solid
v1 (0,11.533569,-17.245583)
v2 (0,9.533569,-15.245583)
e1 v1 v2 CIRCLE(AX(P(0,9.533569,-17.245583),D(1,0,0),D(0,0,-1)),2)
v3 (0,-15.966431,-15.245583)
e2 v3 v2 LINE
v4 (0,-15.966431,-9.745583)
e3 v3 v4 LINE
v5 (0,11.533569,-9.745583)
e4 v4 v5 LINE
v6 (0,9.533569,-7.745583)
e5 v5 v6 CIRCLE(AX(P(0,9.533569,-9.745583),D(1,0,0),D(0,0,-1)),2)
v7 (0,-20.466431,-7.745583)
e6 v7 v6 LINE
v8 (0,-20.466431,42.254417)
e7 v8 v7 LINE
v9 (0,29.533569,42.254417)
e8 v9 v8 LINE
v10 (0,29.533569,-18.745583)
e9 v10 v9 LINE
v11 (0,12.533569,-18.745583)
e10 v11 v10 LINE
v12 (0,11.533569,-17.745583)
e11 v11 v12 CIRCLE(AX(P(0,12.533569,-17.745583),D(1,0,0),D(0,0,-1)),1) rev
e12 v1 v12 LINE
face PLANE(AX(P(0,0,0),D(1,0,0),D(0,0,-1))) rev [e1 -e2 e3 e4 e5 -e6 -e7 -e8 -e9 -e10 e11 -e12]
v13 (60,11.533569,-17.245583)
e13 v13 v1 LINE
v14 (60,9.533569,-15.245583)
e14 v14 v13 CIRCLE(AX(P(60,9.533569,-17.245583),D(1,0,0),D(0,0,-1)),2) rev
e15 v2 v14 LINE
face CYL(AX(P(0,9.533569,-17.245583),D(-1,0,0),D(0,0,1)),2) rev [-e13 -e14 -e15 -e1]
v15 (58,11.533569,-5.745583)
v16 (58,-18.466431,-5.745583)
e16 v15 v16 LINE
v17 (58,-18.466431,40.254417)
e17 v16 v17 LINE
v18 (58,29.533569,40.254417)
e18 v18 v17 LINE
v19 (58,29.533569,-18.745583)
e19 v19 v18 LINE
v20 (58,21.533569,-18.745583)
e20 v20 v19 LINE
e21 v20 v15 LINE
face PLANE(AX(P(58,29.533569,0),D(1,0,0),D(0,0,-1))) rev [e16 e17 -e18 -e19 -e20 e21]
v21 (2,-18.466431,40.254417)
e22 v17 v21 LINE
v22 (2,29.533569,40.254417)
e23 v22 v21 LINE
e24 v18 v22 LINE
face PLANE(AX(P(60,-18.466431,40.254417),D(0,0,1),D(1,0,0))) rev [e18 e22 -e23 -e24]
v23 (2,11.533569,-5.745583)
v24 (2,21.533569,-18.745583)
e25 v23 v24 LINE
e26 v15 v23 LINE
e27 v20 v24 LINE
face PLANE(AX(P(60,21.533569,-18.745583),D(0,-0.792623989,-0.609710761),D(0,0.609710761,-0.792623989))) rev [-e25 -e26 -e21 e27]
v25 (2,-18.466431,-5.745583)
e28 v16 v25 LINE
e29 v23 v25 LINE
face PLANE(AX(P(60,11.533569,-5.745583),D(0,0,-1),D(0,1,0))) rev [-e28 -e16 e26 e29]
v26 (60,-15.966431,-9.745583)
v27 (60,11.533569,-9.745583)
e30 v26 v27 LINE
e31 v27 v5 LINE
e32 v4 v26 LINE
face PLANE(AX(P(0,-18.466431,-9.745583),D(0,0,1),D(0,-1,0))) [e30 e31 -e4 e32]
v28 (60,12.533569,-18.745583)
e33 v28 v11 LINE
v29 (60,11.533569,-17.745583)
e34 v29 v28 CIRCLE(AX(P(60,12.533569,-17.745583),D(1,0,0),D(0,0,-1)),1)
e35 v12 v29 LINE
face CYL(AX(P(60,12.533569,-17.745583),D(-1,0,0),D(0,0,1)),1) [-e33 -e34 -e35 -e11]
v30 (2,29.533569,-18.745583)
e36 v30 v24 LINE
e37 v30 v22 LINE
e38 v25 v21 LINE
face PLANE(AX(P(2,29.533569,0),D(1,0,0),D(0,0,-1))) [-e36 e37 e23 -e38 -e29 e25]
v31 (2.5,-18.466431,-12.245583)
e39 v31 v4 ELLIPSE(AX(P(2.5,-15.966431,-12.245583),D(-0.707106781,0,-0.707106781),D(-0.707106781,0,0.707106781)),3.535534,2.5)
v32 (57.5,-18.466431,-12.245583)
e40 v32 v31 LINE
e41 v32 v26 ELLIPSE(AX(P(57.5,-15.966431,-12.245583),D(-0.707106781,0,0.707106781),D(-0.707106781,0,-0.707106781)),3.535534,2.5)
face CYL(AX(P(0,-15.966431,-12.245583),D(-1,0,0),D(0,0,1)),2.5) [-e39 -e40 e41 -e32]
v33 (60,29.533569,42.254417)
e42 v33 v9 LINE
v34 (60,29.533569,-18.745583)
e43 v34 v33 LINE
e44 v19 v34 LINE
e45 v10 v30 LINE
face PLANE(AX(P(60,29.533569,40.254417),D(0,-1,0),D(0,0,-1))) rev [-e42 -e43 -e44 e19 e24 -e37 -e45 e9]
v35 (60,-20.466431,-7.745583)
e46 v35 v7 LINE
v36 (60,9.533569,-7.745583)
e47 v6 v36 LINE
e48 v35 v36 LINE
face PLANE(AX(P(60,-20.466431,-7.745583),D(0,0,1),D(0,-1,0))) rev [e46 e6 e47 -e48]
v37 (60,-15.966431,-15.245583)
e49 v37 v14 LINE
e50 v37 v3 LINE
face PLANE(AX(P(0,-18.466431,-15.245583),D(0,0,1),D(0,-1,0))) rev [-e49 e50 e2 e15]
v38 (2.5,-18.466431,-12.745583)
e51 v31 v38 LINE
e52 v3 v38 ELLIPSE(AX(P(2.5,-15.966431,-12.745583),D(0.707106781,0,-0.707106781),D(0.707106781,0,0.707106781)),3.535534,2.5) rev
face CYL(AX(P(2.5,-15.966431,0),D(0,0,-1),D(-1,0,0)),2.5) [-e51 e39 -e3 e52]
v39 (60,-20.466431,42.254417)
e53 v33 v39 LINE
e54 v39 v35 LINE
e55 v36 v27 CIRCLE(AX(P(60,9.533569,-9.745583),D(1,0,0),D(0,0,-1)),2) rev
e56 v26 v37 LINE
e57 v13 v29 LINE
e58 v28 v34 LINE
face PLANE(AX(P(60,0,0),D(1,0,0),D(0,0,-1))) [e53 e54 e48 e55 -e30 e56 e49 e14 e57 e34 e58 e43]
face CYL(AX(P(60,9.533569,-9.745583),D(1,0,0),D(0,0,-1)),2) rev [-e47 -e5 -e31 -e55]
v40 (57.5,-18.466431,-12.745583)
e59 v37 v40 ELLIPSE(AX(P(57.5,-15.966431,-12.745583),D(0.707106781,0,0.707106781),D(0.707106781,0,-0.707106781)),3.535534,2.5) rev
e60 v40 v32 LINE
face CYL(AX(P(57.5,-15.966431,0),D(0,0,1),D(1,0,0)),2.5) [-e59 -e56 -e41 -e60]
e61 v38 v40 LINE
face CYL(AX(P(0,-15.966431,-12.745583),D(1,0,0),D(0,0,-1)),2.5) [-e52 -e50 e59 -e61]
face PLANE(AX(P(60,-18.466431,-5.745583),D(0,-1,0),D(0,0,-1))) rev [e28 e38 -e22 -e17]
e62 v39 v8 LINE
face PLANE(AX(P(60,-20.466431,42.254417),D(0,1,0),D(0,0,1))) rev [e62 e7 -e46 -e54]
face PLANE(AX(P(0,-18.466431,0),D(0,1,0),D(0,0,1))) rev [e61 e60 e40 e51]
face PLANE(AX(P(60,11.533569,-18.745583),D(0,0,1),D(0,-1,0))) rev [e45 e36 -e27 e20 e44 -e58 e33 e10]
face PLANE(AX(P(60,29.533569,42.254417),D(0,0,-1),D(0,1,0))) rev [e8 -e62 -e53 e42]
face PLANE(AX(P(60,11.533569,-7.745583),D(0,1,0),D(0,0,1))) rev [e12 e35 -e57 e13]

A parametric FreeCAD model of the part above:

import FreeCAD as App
import Part
import Sketcher
from FreeCAD import Vector


def edges_at(feature, points):
    """Names of the edges that pass closest to the given points."""
    edges = feature.Shape.Edges
    near = lambda p: min(range(len(edges)), key=lambda i: edges[i].distToShape(Part.Vertex(*p))[0])
    return sorted({f"Edge{near(p) + 1}" for p in points})

doc = App.newDocument("Part")
body = doc.addObject("PartDesign::Body", "Body")

# Sketch on YZ plane
sketch1 = doc.addObject("Sketcher::SketchObject", "Sketch")
body.addObject(sketch1)
sketch1.AttachmentSupport = (doc.YZ_Plane, [""])
sketch1.MapMode = "FlatFace"
sketch1.addGeometry(Part.LineSegment(Vector(29.5, 42.3, 0), Vector(-20.5, 42.3, 0)), False)
sketch1.addGeometry(Part.LineSegment(Vector(-20.5, 42.3, 0), Vector(-20.5, -7.7, 0)), False)
sketch1.addGeometry(Part.LineSegment(Vector(-20.5, -7.7, 0), Vector(11.5, -7.7, 0)), False)
sketch1.addGeometry(Part.LineSegment(Vector(11.5, -7.7, 0), Vector(11.5, -18.7, 0)), False)
sketch1.addGeometry(Part.LineSegment(Vector(11.5, -18.7, 0), Vector(21.5, -18.7, 0)), False)
sketch1.addGeometry(Part.LineSegment(Vector(21.5, -18.7, 0), Vector(11.5, -5.7, 0)), False)
sketch1.addGeometry(Part.LineSegment(Vector(11.5, -5.7, 0), Vector(-18.5, -5.7, 0)), False)
sketch1.addGeometry(Part.LineSegment(Vector(-18.5, -5.7, 0), Vector(-18.5, 40.3, 0)), False)
sketch1.addGeometry(Part.LineSegment(Vector(-18.5, 40.3, 0), Vector(29.5, 40.3, 0)), False)
sketch1.addGeometry(Part.LineSegment(Vector(29.5, 40.3, 0), Vector(29.5, 42.3, 0)), False)
sketch1.addConstraint(Sketcher.Constraint("Coincident", 0, 2, 1, 1))
sketch1.addConstraint(Sketcher.Constraint("Coincident", 1, 2, 2, 1))
sketch1.addConstraint(Sketcher.Constraint("Coincident", 2, 2, 3, 1))
sketch1.addConstraint(Sketcher.Constraint("Coincident", 3, 2, 4, 1))
sketch1.addConstraint(Sketcher.Constraint("Coincident", 4, 2, 5, 1))
sketch1.addConstraint(Sketcher.Constraint("Coincident", 5, 2, 6, 1))
sketch1.addConstraint(Sketcher.Constraint("Coincident", 6, 2, 7, 1))
sketch1.addConstraint(Sketcher.Constraint("Coincident", 7, 2, 8, 1))
sketch1.addConstraint(Sketcher.Constraint("Coincident", 8, 2, 9, 1))
sketch1.addConstraint(Sketcher.Constraint("Coincident", 9, 2, 0, 1))
sketch1.addConstraint(Sketcher.Constraint("Horizontal", 0))
sketch1.addConstraint(Sketcher.Constraint("Vertical", 1))
sketch1.addConstraint(Sketcher.Constraint("Horizontal", 2))
sketch1.addConstraint(Sketcher.Constraint("Vertical", 3))
sketch1.addConstraint(Sketcher.Constraint("Horizontal", 4))
sketch1.addConstraint(Sketcher.Constraint("Horizontal", 6))
sketch1.addConstraint(Sketcher.Constraint("Vertical", 7))
sketch1.addConstraint(Sketcher.Constraint("Horizontal", 8))
sketch1.addConstraint(Sketcher.Constraint("Vertical", 9))
sketch1.addConstraint(Sketcher.Constraint("Vertical", 3, 2, 5, 2))
sketch1.addConstraint(Sketcher.Constraint("Equal", 0, 1))
sketch1.addConstraint(Sketcher.Constraint("DistanceX", 0, 2, 0, 1, 50.0))
sketch1.addConstraint(Sketcher.Constraint("DistanceX", 2, 1, 2, 2, 32.0))
sketch1.addConstraint(Sketcher.Constraint("DistanceX", 4, 1, 4, 2, 10.0))
sketch1.addConstraint(Sketcher.Constraint("DistanceX", 6, 2, 6, 1, 30.0))
sketch1.addConstraint(Sketcher.Constraint("DistanceY", 3, 2, 3, 1, 11.0))
sketch1.addConstraint(Sketcher.Constraint("DistanceY", 7, 1, 7, 2, 46.0))
sketch1.addConstraint(Sketcher.Constraint("DistanceY", 9, 1, 9, 2, 2.0))
sketch1.addConstraint(Sketcher.Constraint("DistanceX", 0, 2, -1, 1, 20.466431))
sketch1.addConstraint(Sketcher.Constraint("DistanceY", -1, 1, 0, 2, 42.254417))
pad1 = doc.addObject("PartDesign::Pad", "Pad")
body.addObject(pad1)
pad1.Profile = sketch1
pad1.Length = 60
doc.recompute()

fillet = doc.addObject("PartDesign::Fillet", "Fillet")
body.addObject(fillet)
fillet.Base = (pad1, edges_at(pad1, [(30, 11.534, -7.746)]))
fillet.Radius = 2

# Sketch on XZ plane
sketch2 = doc.addObject("Sketcher::SketchObject", "Sketch001")
body.addObject(sketch2)
sketch2.AttachmentSupport = (doc.XZ_Plane, [""])
sketch2.MapMode = "FlatFace"
sketch2.AttachmentOffset = App.Placement(Vector(0, 0, -11.533569), App.Rotation())
sketch2.addGeometry(Part.LineSegment(Vector(0, -10, 0), Vector(0, -15, 0)), False)
sketch2.addGeometry(Part.LineSegment(Vector(0, -15, 0), Vector(60, -15, 0)), False)
sketch2.addGeometry(Part.LineSegment(Vector(60, -15, 0), Vector(60, -10, 0)), False)
sketch2.addGeometry(Part.LineSegment(Vector(60, -10, 0), Vector(0, -10, 0)), False)
sketch2.addConstraint(Sketcher.Constraint("Coincident", 0, 2, 1, 1))
sketch2.addConstraint(Sketcher.Constraint("Coincident", 1, 2, 2, 1))
sketch2.addConstraint(Sketcher.Constraint("Coincident", 2, 2, 3, 1))
sketch2.addConstraint(Sketcher.Constraint("Coincident", 3, 2, 0, 1))
sketch2.addConstraint(Sketcher.Constraint("Vertical", 0))
sketch2.addConstraint(Sketcher.Constraint("Horizontal", 1))
sketch2.addConstraint(Sketcher.Constraint("Vertical", 2))
sketch2.addConstraint(Sketcher.Constraint("Horizontal", 3))
sketch2.addConstraint(Sketcher.Constraint("PointOnObject", 0, 2, -2))
sketch2.addConstraint(Sketcher.Constraint("DistanceX", 1, 1, 1, 2, 60.0))
sketch2.addConstraint(Sketcher.Constraint("DistanceY", 0, 2, 0, 1, 5.5))
sketch2.addConstraint(Sketcher.Constraint("DistanceY", 0, 2, -1, 1, 15.245583))
pad2 = doc.addObject("PartDesign::Pad", "Pad001")
body.addObject(pad2)
pad2.Profile = sketch2
pad2.Length = 30
doc.recompute()

fillet2 = doc.addObject("PartDesign::Fillet", "Fillet001")
body.addObject(fillet2)
fillet2.Base = (pad2, edges_at(pad2, [(30, 11.534, -15.246)]))
fillet2.Radius = 2

# Sketch on XZ plane
sketch3 = doc.addObject("Sketcher::SketchObject", "Sketch002")
body.addObject(sketch3)
sketch3.AttachmentSupport = (doc.XZ_Plane, [""])
sketch3.MapMode = "FlatFace"
sketch3.AttachmentOffset = App.Placement(Vector(0, 0, 18.466431), App.Rotation())
sketch3.addGeometry(Part.LineSegment(Vector(0, -5.7, 0), Vector(0, 40.3, 0)), False)
sketch3.addGeometry(Part.LineSegment(Vector(0, 40.3, 0), Vector(2, 40.3, 0)), False)
sketch3.addGeometry(Part.LineSegment(Vector(2, 40.3, 0), Vector(2, -5.7, 0)), False)
sketch3.addGeometry(Part.LineSegment(Vector(2, -5.7, 0), Vector(0, -5.7, 0)), False)
sketch3.addGeometry(Part.LineSegment(Vector(58, -5.7, 0), Vector(58, 40.3, 0)), False)
sketch3.addGeometry(Part.LineSegment(Vector(58, 40.3, 0), Vector(60, 40.3, 0)), False)
sketch3.addGeometry(Part.LineSegment(Vector(60, 40.3, 0), Vector(60, -5.7, 0)), False)
sketch3.addGeometry(Part.LineSegment(Vector(60, -5.7, 0), Vector(58, -5.7, 0)), False)
sketch3.addConstraint(Sketcher.Constraint("Coincident", 0, 2, 1, 1))
sketch3.addConstraint(Sketcher.Constraint("Coincident", 1, 2, 2, 1))
sketch3.addConstraint(Sketcher.Constraint("Coincident", 2, 2, 3, 1))
sketch3.addConstraint(Sketcher.Constraint("Coincident", 3, 2, 0, 1))
sketch3.addConstraint(Sketcher.Constraint("Coincident", 4, 2, 5, 1))
sketch3.addConstraint(Sketcher.Constraint("Coincident", 5, 2, 6, 1))
sketch3.addConstraint(Sketcher.Constraint("Coincident", 6, 2, 7, 1))
sketch3.addConstraint(Sketcher.Constraint("Coincident", 7, 2, 4, 1))
sketch3.addConstraint(Sketcher.Constraint("Vertical", 0))
sketch3.addConstraint(Sketcher.Constraint("Horizontal", 1))
sketch3.addConstraint(Sketcher.Constraint("Vertical", 2))
sketch3.addConstraint(Sketcher.Constraint("Horizontal", 3))
sketch3.addConstraint(Sketcher.Constraint("Vertical", 4))
sketch3.addConstraint(Sketcher.Constraint("Horizontal", 5))
sketch3.addConstraint(Sketcher.Constraint("Vertical", 6))
sketch3.addConstraint(Sketcher.Constraint("Horizontal", 7))
sketch3.addConstraint(Sketcher.Constraint("PointOnObject", 0, 2, -2))
sketch3.addConstraint(Sketcher.Constraint("Horizontal", 1, 2, 4, 2))
sketch3.addConstraint(Sketcher.Constraint("Horizontal", 3, 2, 6, 2))
sketch3.addConstraint(Sketcher.Constraint("Equal", 3, 5))
sketch3.addConstraint(Sketcher.Constraint("DistanceX", 1, 1, 1, 2, 2.0))
sketch3.addConstraint(Sketcher.Constraint("DistanceY", 0, 1, 0, 2, 46.0))
sketch3.addConstraint(Sketcher.Constraint("DistanceX", -1, 1, 4, 2, 58.0))
sketch3.addConstraint(Sketcher.Constraint("DistanceY", -1, 1, 0, 2, 40.254417))
pad3 = doc.addObject("PartDesign::Pad", "Pad002")
body.addObject(pad3)
pad3.Profile = sketch3
pad3.Length = 48
pad3.Reversed = True

# Sketch on XY plane
sketch4 = doc.addObject("Sketcher::SketchObject", "Sketch003")
body.addObject(sketch4)
sketch4.AttachmentSupport = (doc.XY_Plane, [""])
sketch4.MapMode = "FlatFace"
sketch4.AttachmentOffset = App.Placement(Vector(0, 0, -5.745583), App.Rotation())
sketch4.addGeometry(Part.LineSegment(Vector(2, 29.5, 0), Vector(2, 11.5, 0)), False)
sketch4.addGeometry(Part.LineSegment(Vector(2, 11.5, 0), Vector(0, 11.5, 0)), False)
sketch4.addGeometry(Part.LineSegment(Vector(0, 11.5, 0), Vector(0, 29.5, 0)), False)
sketch4.addGeometry(Part.LineSegment(Vector(0, 29.5, 0), Vector(2, 29.5, 0)), False)
sketch4.addConstraint(Sketcher.Constraint("Coincident", 0, 2, 1, 1))
sketch4.addConstraint(Sketcher.Constraint("Coincident", 1, 2, 2, 1))
sketch4.addConstraint(Sketcher.Constraint("Coincident", 2, 2, 3, 1))
sketch4.addConstraint(Sketcher.Constraint("Coincident", 3, 2, 0, 1))
sketch4.addConstraint(Sketcher.Constraint("Vertical", 0))
sketch4.addConstraint(Sketcher.Constraint("Horizontal", 1))
sketch4.addConstraint(Sketcher.Constraint("Vertical", 2))
sketch4.addConstraint(Sketcher.Constraint("Horizontal", 3))
sketch4.addConstraint(Sketcher.Constraint("PointOnObject", 1, 2, -2))
sketch4.addConstraint(Sketcher.Constraint("DistanceX", 1, 2, 1, 1, 2.0))
sketch4.addConstraint(Sketcher.Constraint("DistanceY", 0, 2, 0, 1, 18.0))
sketch4.addConstraint(Sketcher.Constraint("DistanceY", -1, 1, 0, 2, 11.533569))
pad4 = doc.addObject("PartDesign::Pad", "Pad003")
body.addObject(pad4)
pad4.Profile = sketch4
pad4.Length = 13
pad4.Reversed = True

# Sketch on XY plane
sketch5 = doc.addObject("Sketcher::SketchObject", "Sketch004")
body.addObject(sketch5)
sketch5.AttachmentSupport = (doc.XY_Plane, [""])
sketch5.MapMode = "FlatFace"
sketch5.AttachmentOffset = App.Placement(Vector(0, 0, -5.745583), App.Rotation())
sketch5.addGeometry(Part.LineSegment(Vector(60, 29.5, 0), Vector(60, 11.5, 0)), False)
sketch5.addGeometry(Part.LineSegment(Vector(60, 11.5, 0), Vector(58, 11.5, 0)), False)
sketch5.addGeometry(Part.LineSegment(Vector(58, 11.5, 0), Vector(58, 29.5, 0)), False)
sketch5.addGeometry(Part.LineSegment(Vector(58, 29.5, 0), Vector(60, 29.5, 0)), False)
sketch5.addConstraint(Sketcher.Constraint("Coincident", 0, 2, 1, 1))
sketch5.addConstraint(Sketcher.Constraint("Coincident", 1, 2, 2, 1))
sketch5.addConstraint(Sketcher.Constraint("Coincident", 2, 2, 3, 1))
sketch5.addConstraint(Sketcher.Constraint("Coincident", 3, 2, 0, 1))
sketch5.addConstraint(Sketcher.Constraint("Vertical", 0))
sketch5.addConstraint(Sketcher.Constraint("Horizontal", 1))
sketch5.addConstraint(Sketcher.Constraint("Vertical", 2))
sketch5.addConstraint(Sketcher.Constraint("Horizontal", 3))
sketch5.addConstraint(Sketcher.Constraint("DistanceX", 1, 2, 1, 1, 2.0))
sketch5.addConstraint(Sketcher.Constraint("DistanceY", 0, 2, 0, 1, 18.0))
sketch5.addConstraint(Sketcher.Constraint("DistanceX", -1, 1, 0, 2, 60.0))
sketch5.addConstraint(Sketcher.Constraint("DistanceY", -1, 1, 0, 2, 11.533569))
pad5 = doc.addObject("PartDesign::Pad", "Pad004")
body.addObject(pad5)
pad5.Profile = sketch5
pad5.Length = 13
pad5.Reversed = True
doc.recompute()

fillet3 = doc.addObject("PartDesign::Fillet", "Fillet002")
body.addObject(fillet3)
fillet3.Base = (pad5, edges_at(pad5, [(30, 11.534, -18.746)]))
fillet3.Radius = 1
doc.recompute()

fillet4 = doc.addObject("PartDesign::Fillet", "Fillet003")
body.addObject(fillet4)
fillet4.Base = (fillet3, edges_at(fillet3, [
    (60, -18.466, -12.496),
    (30, -18.466, -9.746),
    (30, -18.466, -15.246),
    (0, -18.466, -12.496),
]))
fillet4.Radius = 2.5

doc.recompute()
